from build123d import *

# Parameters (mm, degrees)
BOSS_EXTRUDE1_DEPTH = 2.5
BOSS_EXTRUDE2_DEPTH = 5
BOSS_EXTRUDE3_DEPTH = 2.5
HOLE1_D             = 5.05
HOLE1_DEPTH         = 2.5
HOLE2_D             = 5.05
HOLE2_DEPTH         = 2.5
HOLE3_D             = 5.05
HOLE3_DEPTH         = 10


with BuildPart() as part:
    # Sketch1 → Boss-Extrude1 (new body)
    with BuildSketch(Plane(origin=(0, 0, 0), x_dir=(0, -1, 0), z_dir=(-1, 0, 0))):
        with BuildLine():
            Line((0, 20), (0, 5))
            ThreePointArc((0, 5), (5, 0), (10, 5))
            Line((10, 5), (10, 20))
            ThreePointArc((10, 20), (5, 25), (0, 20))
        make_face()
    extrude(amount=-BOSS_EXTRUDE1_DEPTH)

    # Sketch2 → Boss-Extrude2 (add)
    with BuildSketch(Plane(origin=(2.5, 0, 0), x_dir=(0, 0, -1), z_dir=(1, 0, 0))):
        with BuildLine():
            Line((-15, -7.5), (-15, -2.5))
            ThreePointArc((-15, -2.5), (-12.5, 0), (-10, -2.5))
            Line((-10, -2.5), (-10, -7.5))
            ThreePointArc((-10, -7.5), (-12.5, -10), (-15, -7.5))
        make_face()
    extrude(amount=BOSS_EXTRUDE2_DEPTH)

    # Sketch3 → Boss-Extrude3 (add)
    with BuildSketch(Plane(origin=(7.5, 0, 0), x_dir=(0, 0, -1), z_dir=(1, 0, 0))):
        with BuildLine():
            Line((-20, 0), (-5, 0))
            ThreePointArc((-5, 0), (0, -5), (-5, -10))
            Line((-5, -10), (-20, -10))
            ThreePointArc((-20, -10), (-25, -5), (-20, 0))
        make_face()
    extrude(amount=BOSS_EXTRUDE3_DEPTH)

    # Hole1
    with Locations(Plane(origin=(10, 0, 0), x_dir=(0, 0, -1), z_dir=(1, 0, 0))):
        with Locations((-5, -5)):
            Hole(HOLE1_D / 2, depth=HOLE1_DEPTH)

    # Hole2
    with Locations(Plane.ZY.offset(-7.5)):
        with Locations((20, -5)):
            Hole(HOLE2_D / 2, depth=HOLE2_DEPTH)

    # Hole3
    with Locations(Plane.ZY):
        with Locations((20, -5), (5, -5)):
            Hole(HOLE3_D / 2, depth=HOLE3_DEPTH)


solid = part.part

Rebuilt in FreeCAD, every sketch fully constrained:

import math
import FreeCAD as App
import Part
import Sketcher
from FreeCAD import Vector
Q = App.Units.Quantity

doc = App.newDocument("Part")
body = doc.addObject("PartDesign::Body", "Body")

sketch1 = body.newObject("Sketcher::SketchObject", "Sketch")
sketch1.AttachmentSupport = (doc.getObject("YZ_Plane"), [""])
sketch1.MapMode = "FlatFace"
sketch1.addGeometry(Part.LineSegment(Vector(0, 20, 0), Vector(0, 5, 0)), False)
sketch1.addGeometry(Part.ArcOfCircle(Part.Circle(Vector(-5, 5, 0), Vector(0, 0, 1), 5), math.radians(180), math.radians(360)), False)
sketch1.addGeometry(Part.LineSegment(Vector(-10, 5, 0), Vector(-10, 20, 0)), False)
sketch1.addGeometry(Part.ArcOfCircle(Part.Circle(Vector(-5, 20, 0), Vector(0, 0, 1), 5), math.radians(0), math.radians(180)), False)
sketch1.addConstraint(Sketcher.Constraint("Tangent", 0, 2, 1, 2))
sketch1.addConstraint(Sketcher.Constraint("Tangent", 1, 1, 2, 1))
sketch1.addConstraint(Sketcher.Constraint("Tangent", 2, 2, 3, 2))
sketch1.addConstraint(Sketcher.Constraint("Tangent", 3, 1, 0, 1))
sketch1.addConstraint(Sketcher.Constraint("Vertical", 0))
sketch1.addConstraint(Sketcher.Constraint("Vertical", 2))
sketch1.addConstraint(Sketcher.Constraint("PointOnObject", 0, 2, -2))
sketch1.addConstraint(Sketcher.Constraint("Radius", 1, Q("5 mm")))
sketch1.addConstraint(Sketcher.Constraint("DistanceY", 0, 2, 0, 1, Q("15 mm")))
sketch1.addConstraint(Sketcher.Constraint("DistanceY", -1, 1, 1, 3, Q("5 mm")))
pad1 = body.newObject("PartDesign::Pad", "Pad")
pad1.Profile = sketch1
pad1.Length = 2.5

sketch2 = body.newObject("Sketcher::SketchObject", "Sketch001")
sketch2.AttachmentSupport = (doc.getObject("YZ_Plane"), [""])
sketch2.MapMode = "FlatFace"
sketch2.AttachmentOffset = App.Placement(Vector(0, 0, 2.5), App.Rotation())
sketch2.addGeometry(Part.LineSegment(Vector(-2.5, 15, 0), Vector(-7.5, 15, 0)), False)
sketch2.addGeometry(Part.ArcOfCircle(Part.Circle(Vector(-7.5, 12.5, 0), Vector(0, 0, 1), 2.5), math.radians(90), math.radians(270)), False)
sketch2.addGeometry(Part.LineSegment(Vector(-7.5, 10, 0), Vector(-2.5, 10, 0)), False)
sketch2.addGeometry(Part.ArcOfCircle(Part.Circle(Vector(-2.5, 12.5, 0), Vector(0, 0, 1), 2.5), math.radians(-90), math.radians(90)), False)
sketch2.addConstraint(Sketcher.Constraint("Tangent", 0, 2, 1, 1))
sketch2.addConstraint(Sketcher.Constraint("Tangent", 1, 2, 2, 1))
sketch2.addConstraint(Sketcher.Constraint("Tangent", 2, 2, 3, 1))
sketch2.addConstraint(Sketcher.Constraint("Tangent", 3, 2, 0, 1))
sketch2.addConstraint(Sketcher.Constraint("Horizontal", 0))
sketch2.addConstraint(Sketcher.Constraint("Horizontal", 2))
sketch2.addConstraint(Sketcher.Constraint("Radius", 1, Q("2.5 mm")))
sketch2.addConstraint(Sketcher.Constraint("DistanceX", 0, 2, 0, 1, Q("5 mm")))
sketch2.addConstraint(Sketcher.Constraint("DistanceY", -1, 1, 0, 2, Q("15 mm")))
sketch2.addConstraint(Sketcher.Constraint("DistanceX", 1, 3, -1, 1, Q("7.5 mm")))
pad2 = body.newObject("PartDesign::Pad", "Pad001")
pad2.Profile = sketch2
pad2.Length = 5

sketch3 = body.newObject("Sketcher::SketchObject", "Sketch002")
sketch3.AttachmentSupport = (doc.getObject("YZ_Plane"), [""])
sketch3.MapMode = "FlatFace"
sketch3.AttachmentOffset = App.Placement(Vector(0, 0, 7.5), App.Rotation())
sketch3.addGeometry(Part.LineSegment(Vector(0, 5, 0), Vector(0, 20, 0)), False)
sketch3.addGeometry(Part.ArcOfCircle(Part.Circle(Vector(-5, 20, 0), Vector(0, 0, 1), 5), math.radians(0), math.radians(180)), False)
sketch3.addGeometry(Part.LineSegment(Vector(-10, 20, 0), Vector(-10, 5, 0)), False)
sketch3.addGeometry(Part.ArcOfCircle(Part.Circle(Vector(-5, 5, 0), Vector(0, 0, 1), 5), math.radians(180), math.radians(360)), False)
sketch3.addConstraint(Sketcher.Constraint("Tangent", 0, 2, 1, 1))
sketch3.addConstraint(Sketcher.Constraint("Tangent", 1, 2, 2, 1))
sketch3.addConstraint(Sketcher.Constraint("Tangent", 2, 2, 3, 1))
sketch3.addConstraint(Sketcher.Constraint("Tangent", 3, 2, 0, 1))
sketch3.addConstraint(Sketcher.Constraint("Vertical", 0))
sketch3.addConstraint(Sketcher.Constraint("Vertical", 2))
sketch3.addConstraint(Sketcher.Constraint("PointOnObject", 0, 2, -2))
sketch3.addConstraint(Sketcher.Constraint("Radius", 1, Q("5 mm")))
sketch3.addConstraint(Sketcher.Constraint("DistanceY", 0, 1, 0, 2, Q("15 mm")))
sketch3.addConstraint(Sketcher.Constraint("DistanceY", -1, 1, 1, 3, Q("20 mm")))
pad3 = body.newObject("PartDesign::Pad", "Pad002")
pad3.Profile = sketch3
pad3.Length = 2.5

sketch4 = body.newObject("Sketcher::SketchObject", "Sketch003")
sketch4.AttachmentSupport = (doc.getObject("YZ_Plane"), [""])
sketch4.MapMode = "FlatFace"
sketch4.AttachmentOffset = App.Placement(Vector(0, 0, 10), App.Rotation())
sketch4.addGeometry(Part.Circle(Vector(-5, 5, 0), Vector(0, 0, 1), 2.525), False)
sketch4.addConstraint(Sketcher.Constraint("Diameter", 0, Q("5.05 mm")))
sketch4.addConstraint(Sketcher.Constraint("DistanceX", 0, 3, -1, 1, Q("5 mm")))
sketch4.addConstraint(Sketcher.Constraint("DistanceY", -1, 1, 0, 3, Q("5 mm")))
doc.recompute()
hole = body.newObject("PartDesign::Hole", "Hole")
hole.Profile = sketch4
hole.ThreadType = "None"
hole.Diameter = 5.05
hole.DepthType = "Dimension"
hole.Depth = 2.5
hole.DrillPoint = "Flat"

sketch5 = body.newObject("Sketcher::SketchObject", "Sketch004")
sketch5.AttachmentSupport = (doc.getObject("YZ_Plane"), [""])
sketch5.MapMode = "FlatFace"
sketch5.AttachmentOffset = App.Placement(Vector(0, 0, 7.5), App.Rotation())
sketch5.addGeometry(Part.Circle(Vector(-5, 20, 0), Vector(0, 0, 1), 2.525), False)
sketch5.addConstraint(Sketcher.Constraint("Diameter", 0, Q("5.05 mm")))
sketch5.addConstraint(Sketcher.Constraint("DistanceX", 0, 3, -1, 1, Q("5 mm")))
sketch5.addConstraint(Sketcher.Constraint("DistanceY", -1, 1, 0, 3, Q("20 mm")))
doc.recompute()
hole2 = body.newObject("PartDesign::Hole", "Hole001")
hole2.Profile = sketch5
hole2.ThreadType = "None"
hole2.Diameter = 5.05
hole2.DepthType = "Dimension"
hole2.Depth = 2.5
hole2.DrillPoint = "Flat"
hole2.Reversed = True

sketch6 = body.newObject("Sketcher::SketchObject", "Sketch005")
sketch6.AttachmentSupport = (doc.getObject("YZ_Plane"), [""])
sketch6.MapMode = "FlatFace"
sketch6.addGeometry(Part.Circle(Vector(-5, 20, 0), Vector(0, 0, 1), 2.525), False)
sketch6.addGeometry(Part.Circle(Vector(-5, 5, 0), Vector(0, 0, 1), 2.525), False)
sketch6.addConstraint(Sketcher.Constraint("Equal", 0, 1))
sketch6.addConstraint(Sketcher.Constraint("Vertical", 0, 3, 1, 3))
sketch6.addConstraint(Sketcher.Constraint("Diameter", 0, Q("5.05 mm")))
sketch6.addConstraint(Sketcher.Constraint("DistanceX", 0, 3, -1, 1, Q("5 mm")))
sketch6.addConstraint(Sketcher.Constraint("DistanceY", -1, 1, 0, 3, Q("20 mm")))
sketch6.addConstraint(Sketcher.Constraint("DistanceY", -1, 1, 1, 3, Q("5 mm")))
doc.recompute()
hole3 = body.newObject("PartDesign::Hole", "Hole002")
hole3.Profile = sketch6
hole3.ThreadType = "None"
hole3.Diameter = 5.05
hole3.DepthType = "Dimension"
hole3.Depth = 10
hole3.DrillPoint = "Flat"
hole3.Reversed = True

doc.recompute()
